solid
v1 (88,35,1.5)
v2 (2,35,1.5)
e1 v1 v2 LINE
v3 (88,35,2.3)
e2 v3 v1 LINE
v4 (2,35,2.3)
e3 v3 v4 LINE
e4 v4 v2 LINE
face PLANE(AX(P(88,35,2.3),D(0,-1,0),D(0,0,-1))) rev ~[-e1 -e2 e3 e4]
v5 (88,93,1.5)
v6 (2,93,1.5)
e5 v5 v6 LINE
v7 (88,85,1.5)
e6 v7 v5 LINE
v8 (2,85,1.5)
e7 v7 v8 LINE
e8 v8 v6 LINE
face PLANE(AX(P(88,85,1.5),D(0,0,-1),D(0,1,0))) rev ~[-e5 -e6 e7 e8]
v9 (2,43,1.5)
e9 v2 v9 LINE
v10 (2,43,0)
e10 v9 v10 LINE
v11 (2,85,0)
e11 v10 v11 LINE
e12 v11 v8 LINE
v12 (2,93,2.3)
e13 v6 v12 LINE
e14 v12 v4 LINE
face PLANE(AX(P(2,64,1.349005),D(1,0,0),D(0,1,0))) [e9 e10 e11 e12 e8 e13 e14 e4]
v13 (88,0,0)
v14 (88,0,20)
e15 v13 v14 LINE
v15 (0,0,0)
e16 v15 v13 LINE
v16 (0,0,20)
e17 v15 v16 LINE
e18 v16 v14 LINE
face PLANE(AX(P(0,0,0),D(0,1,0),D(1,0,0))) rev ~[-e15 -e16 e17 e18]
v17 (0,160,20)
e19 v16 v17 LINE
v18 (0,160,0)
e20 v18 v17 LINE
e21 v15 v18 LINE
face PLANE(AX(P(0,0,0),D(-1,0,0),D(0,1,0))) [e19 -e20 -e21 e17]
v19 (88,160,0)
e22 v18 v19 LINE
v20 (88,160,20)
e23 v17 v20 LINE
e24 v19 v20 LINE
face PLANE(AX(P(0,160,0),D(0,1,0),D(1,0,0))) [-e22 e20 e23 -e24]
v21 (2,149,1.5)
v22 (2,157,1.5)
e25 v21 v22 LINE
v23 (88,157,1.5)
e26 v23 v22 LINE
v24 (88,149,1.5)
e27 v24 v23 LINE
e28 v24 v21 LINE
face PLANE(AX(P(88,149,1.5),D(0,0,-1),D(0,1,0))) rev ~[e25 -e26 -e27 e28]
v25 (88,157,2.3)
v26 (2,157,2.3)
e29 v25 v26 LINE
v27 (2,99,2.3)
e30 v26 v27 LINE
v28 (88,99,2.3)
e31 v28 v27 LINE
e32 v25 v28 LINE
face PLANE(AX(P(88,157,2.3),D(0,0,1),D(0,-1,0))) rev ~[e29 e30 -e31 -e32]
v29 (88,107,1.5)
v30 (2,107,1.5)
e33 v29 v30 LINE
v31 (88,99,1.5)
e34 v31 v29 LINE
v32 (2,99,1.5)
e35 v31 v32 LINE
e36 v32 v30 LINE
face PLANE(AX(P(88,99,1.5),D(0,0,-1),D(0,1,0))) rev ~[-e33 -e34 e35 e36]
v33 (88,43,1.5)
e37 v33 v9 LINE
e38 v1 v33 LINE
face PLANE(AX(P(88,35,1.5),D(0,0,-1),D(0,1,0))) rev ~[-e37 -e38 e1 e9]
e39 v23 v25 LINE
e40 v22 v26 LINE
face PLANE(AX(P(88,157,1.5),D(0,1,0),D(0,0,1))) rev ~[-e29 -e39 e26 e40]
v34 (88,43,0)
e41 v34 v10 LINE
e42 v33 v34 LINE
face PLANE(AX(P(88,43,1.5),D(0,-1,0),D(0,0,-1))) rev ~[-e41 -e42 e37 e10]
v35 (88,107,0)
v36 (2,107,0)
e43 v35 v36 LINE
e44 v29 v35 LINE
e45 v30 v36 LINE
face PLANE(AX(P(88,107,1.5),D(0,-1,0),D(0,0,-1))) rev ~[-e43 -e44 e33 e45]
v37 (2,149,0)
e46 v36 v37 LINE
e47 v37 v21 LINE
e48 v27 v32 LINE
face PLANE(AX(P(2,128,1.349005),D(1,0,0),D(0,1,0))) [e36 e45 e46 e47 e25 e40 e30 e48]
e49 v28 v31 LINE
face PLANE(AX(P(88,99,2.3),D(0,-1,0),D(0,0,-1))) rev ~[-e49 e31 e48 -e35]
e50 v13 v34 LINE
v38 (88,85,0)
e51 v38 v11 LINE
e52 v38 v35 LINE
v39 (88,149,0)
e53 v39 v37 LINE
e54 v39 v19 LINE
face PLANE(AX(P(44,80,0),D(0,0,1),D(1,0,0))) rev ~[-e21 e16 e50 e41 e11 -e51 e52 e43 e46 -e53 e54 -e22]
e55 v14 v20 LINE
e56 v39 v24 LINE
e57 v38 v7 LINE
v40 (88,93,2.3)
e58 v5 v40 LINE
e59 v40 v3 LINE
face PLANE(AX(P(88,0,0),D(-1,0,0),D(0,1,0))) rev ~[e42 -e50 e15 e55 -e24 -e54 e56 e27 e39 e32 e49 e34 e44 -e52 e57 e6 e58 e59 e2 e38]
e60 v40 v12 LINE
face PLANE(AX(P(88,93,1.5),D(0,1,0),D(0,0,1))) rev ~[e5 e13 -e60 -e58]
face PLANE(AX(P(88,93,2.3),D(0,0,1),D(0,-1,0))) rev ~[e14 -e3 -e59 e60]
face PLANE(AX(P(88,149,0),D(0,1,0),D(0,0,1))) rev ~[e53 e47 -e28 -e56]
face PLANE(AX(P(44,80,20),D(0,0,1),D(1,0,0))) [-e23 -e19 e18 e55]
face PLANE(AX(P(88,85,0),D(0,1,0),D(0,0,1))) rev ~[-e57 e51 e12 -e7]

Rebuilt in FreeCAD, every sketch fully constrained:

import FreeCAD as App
import Part
import Sketcher

V = App.Vector
Q = App.Units.Quantity


def add_polygon(sketch, points):
    """Adds a closed chain of lines whose ends are joined by coincident constraints."""
    first, n = sketch.GeometryCount, len(points)
    for a, b in zip(points, points[1:] + points[:1]):
        sketch.addGeometry(Part.LineSegment(App.Vector(*a, 0), App.Vector(*b, 0)), False)
    for i in range(n):
        sketch.addConstraint(Sketcher.Constraint("Coincident", first + i, 2, first + (i + 1) % n, 1))

doc = App.newDocument("Part")
body = doc.addObject("PartDesign::Body", "Body")

sketch1 = body.newObject("Sketcher::SketchObject", "Sketch")
sketch1.AttachmentSupport = (doc.getObject("XY_Plane"), [""])
sketch1.MapMode = "FlatFace"
add_polygon(sketch1, [(0, 160), (0, 0), (88, 0), (88, 160)])
sketch1.addConstraint(Sketcher.Constraint("Vertical", 0))
sketch1.addConstraint(Sketcher.Constraint("Horizontal", 1))
sketch1.addConstraint(Sketcher.Constraint("Vertical", 2))
sketch1.addConstraint(Sketcher.Constraint("Horizontal", 3))
sketch1.addConstraint(Sketcher.Constraint("Coincident", 0, 2, -1, 1))
sketch1.addConstraint(Sketcher.Constraint("DistanceX", 1, 1, 1, 2, Q("88 mm")))
sketch1.addConstraint(Sketcher.Constraint("DistanceY", 0, 2, 0, 1, Q("160 mm")))
pad1 = body.newObject("PartDesign::Pad", "Pad")
pad1.Profile = sketch1
pad1.Length = 20

sketch2 = body.newObject("Sketcher::SketchObject", "Sketch001")
sketch2.AttachmentSupport = (doc.getObject("YZ_Plane"), [""])
sketch2.MapMode = "FlatFace"
sketch2.AttachmentOffset = App.Placement(V(0, 0, 88), App.Rotation())
add_polygon(sketch2, [(107, 0), (149, 0), (149, 1.5), (157, 1.5), (157, 2.3), (99, 2.3), (99, 1.5), (107, 1.5)])
add_polygon(sketch2, [(93, 1.5), (93, 2.3), (35, 2.3), (35, 1.5), (43, 1.5), (43, 0), (85, 0), (85, 1.5)])
sketch2.addConstraint(Sketcher.Constraint("Horizontal", 0))
sketch2.addConstraint(Sketcher.Constraint("Vertical", 1))
sketch2.addConstraint(Sketcher.Constraint("Horizontal", 2))
sketch2.addConstraint(Sketcher.Constraint("Vertical", 3))
sketch2.addConstraint(Sketcher.Constraint("Horizontal", 4))
sketch2.addConstraint(Sketcher.Constraint("Vertical", 5))
sketch2.addConstraint(Sketcher.Constraint("Horizontal", 6))
sketch2.addConstraint(Sketcher.Constraint("Vertical", 7))
sketch2.addConstraint(Sketcher.Constraint("Vertical", 8))
sketch2.addConstraint(Sketcher.Constraint("Horizontal", 9))
sketch2.addConstraint(Sketcher.Constraint("Vertical", 10))
sketch2.addConstraint(Sketcher.Constraint("Horizontal", 11))
sketch2.addConstraint(Sketcher.Constraint("Vertical", 12))
sketch2.addConstraint(Sketcher.Constraint("Horizontal", 13))
sketch2.addConstraint(Sketcher.Constraint("Vertical", 14))
sketch2.addConstraint(Sketcher.Constraint("Horizontal", 15))
sketch2.addConstraint(Sketcher.Constraint("PointOnObject", 0, 2, -1))
sketch2.addConstraint(Sketcher.Constraint("PointOnObject", 12, 2, -1))
sketch2.addConstraint(Sketcher.Constraint("Horizontal", 2, 2, 5, 2))
sketch2.addConstraint(Sketcher.Constraint("Horizontal", 4, 2, 8, 2))
sketch2.addConstraint(Sketcher.Constraint("Horizontal", 6, 2, 10, 2))
sketch2.addConstraint(Sketcher.Constraint("Horizontal", 11, 2, 14, 2))
sketch2.addConstraint(Sketcher.Constraint("Equal", 2, 6))
sketch2.addConstraint(Sketcher.Constraint("Equal", 4, 9))
sketch2.addConstraint(Sketcher.Constraint("Equal", 6, 11))
sketch2.addConstraint(Sketcher.Constraint("Equal", 0, 13))
sketch2.addConstraint(Sketcher.Constraint("DistanceX", 0, 1, 0, 2, Q("42 mm")))
sketch2.addConstraint(Sketcher.Constraint("DistanceX", 2, 1, 2, 2, Q("8 mm")))
sketch2.addConstraint(Sketcher.Constraint("DistanceY", 1, 1, 1, 2, Q("1.5 mm")))
sketch2.addConstraint(Sketcher.Constraint("DistanceY", 3, 1, 3, 2, Q("0.8 mm")))
sketch2.addConstraint(Sketcher.Constraint("DistanceX", -1, 1, 0, 2, Q("149 mm")))
sketch2.addConstraint(Sketcher.Constraint("DistanceX", -1, 1, 8, 2, Q("93 mm")))
pocket1 = body.newObject("PartDesign::Pocket", "Pocket")
pocket1.Profile = sketch2
pocket1.Length = 86

doc.recompute()
